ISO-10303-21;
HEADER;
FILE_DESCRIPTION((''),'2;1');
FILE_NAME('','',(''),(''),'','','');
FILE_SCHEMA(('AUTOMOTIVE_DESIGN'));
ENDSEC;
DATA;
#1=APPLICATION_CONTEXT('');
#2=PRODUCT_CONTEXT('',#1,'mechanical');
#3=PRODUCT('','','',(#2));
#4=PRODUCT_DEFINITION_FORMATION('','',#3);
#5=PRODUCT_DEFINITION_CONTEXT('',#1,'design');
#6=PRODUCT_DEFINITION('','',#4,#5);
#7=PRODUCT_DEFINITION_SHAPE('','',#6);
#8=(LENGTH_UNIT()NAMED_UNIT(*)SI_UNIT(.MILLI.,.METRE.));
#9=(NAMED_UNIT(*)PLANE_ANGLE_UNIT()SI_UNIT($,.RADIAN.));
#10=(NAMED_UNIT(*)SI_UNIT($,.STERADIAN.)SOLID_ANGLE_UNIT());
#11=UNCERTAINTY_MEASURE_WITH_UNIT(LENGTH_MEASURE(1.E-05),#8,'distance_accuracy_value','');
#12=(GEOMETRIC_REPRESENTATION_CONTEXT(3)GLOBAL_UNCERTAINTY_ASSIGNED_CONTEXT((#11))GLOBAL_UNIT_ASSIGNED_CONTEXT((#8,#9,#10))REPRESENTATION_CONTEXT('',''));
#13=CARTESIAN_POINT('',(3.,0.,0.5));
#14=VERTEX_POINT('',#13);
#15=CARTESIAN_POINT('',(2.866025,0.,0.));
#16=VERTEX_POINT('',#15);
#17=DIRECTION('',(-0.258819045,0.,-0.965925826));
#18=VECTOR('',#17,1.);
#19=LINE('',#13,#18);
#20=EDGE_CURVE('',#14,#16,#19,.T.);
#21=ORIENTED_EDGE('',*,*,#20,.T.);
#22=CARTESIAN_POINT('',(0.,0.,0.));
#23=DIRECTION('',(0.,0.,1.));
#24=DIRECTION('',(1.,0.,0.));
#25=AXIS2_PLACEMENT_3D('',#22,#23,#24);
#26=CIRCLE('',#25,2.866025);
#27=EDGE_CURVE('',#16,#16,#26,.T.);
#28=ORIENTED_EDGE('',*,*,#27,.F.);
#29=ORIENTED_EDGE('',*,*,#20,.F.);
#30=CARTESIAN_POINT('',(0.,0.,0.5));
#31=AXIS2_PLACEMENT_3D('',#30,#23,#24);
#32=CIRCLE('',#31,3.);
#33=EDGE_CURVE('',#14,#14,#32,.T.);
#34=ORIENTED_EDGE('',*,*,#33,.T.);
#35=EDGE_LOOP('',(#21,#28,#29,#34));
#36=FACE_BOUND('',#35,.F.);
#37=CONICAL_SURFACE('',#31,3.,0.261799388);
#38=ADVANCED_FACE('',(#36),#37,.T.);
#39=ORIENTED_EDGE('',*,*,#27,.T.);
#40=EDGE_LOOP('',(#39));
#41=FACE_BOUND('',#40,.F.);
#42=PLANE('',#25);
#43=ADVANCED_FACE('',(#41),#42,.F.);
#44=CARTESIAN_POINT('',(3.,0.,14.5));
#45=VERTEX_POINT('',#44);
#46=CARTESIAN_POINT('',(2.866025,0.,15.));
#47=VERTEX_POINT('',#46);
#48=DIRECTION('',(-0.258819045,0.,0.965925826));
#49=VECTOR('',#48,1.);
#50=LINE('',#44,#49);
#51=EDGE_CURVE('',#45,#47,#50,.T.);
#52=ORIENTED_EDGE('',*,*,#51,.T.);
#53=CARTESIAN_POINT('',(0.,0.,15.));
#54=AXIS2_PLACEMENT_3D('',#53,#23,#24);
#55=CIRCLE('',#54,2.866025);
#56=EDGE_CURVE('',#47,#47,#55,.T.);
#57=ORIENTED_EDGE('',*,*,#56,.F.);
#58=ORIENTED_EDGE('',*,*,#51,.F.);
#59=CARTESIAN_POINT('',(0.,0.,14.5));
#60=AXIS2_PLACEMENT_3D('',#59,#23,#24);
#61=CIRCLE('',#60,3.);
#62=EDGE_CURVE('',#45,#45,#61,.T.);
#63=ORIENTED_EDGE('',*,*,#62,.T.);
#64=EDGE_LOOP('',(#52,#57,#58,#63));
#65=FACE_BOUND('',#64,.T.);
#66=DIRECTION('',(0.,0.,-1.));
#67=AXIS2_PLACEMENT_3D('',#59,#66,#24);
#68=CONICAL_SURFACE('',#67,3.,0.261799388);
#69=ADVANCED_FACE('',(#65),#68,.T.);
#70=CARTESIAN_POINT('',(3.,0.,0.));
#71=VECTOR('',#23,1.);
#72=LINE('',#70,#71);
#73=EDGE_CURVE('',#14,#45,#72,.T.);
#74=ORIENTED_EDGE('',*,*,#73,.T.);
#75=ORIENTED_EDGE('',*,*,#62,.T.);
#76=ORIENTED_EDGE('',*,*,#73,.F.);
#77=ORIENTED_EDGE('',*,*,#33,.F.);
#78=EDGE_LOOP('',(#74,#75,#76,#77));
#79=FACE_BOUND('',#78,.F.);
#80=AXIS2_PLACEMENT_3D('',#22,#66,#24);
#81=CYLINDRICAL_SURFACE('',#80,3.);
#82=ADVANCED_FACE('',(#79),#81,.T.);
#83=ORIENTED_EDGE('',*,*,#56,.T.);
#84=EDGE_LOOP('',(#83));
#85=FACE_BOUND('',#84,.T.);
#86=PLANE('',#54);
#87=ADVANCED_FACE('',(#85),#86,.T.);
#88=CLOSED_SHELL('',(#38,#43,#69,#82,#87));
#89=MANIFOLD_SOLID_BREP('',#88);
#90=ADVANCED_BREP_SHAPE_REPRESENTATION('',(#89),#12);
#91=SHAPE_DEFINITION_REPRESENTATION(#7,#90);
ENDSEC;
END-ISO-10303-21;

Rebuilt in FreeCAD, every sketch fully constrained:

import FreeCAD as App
import Part
import Sketcher
Q = App.Units.Quantity


def edges_at(feature, points):
    """Names of the edges that pass closest to the given points."""
    edges = feature.Shape.Edges
    near = lambda p: min(range(len(edges)), key=lambda i: edges[i].distToShape(Part.Vertex(*p))[0])
    return sorted({f"Edge{near(p) + 1}" for p in points})

doc = App.newDocument("Part")
body = doc.addObject("PartDesign::Body", "Body")

sketch1 = body.newObject("Sketcher::SketchObject", "Sketch")
sketch1.AttachmentSupport = (doc.getObject("XY_Plane"), [""])
sketch1.MapMode = "FlatFace"
sketch1.addGeometry(Part.Circle(App.Vector(0, 0, 0), App.Vector(0, 0, 1), 3), False)
sketch1.addConstraint([
    Sketcher.Constraint("Coincident", 0, 3, -1, 1),
    Sketcher.Constraint("Diameter", 0, Q("6 mm")),
])
pad1 = body.newObject("PartDesign::Pad", "Pad")
pad1.Profile = sketch1
pad1.Length = 15
doc.recompute()

chamfer = body.newObject("PartDesign::Chamfer", "Chamfer")
chamfer.Base = (pad1, edges_at(pad1, [(-3, 0, 0), (-3, 0, 15)]))
chamfer.ChamferType = "Distance and Angle"
chamfer.Size = 0.5
chamfer.Angle = 15

doc.recompute()
